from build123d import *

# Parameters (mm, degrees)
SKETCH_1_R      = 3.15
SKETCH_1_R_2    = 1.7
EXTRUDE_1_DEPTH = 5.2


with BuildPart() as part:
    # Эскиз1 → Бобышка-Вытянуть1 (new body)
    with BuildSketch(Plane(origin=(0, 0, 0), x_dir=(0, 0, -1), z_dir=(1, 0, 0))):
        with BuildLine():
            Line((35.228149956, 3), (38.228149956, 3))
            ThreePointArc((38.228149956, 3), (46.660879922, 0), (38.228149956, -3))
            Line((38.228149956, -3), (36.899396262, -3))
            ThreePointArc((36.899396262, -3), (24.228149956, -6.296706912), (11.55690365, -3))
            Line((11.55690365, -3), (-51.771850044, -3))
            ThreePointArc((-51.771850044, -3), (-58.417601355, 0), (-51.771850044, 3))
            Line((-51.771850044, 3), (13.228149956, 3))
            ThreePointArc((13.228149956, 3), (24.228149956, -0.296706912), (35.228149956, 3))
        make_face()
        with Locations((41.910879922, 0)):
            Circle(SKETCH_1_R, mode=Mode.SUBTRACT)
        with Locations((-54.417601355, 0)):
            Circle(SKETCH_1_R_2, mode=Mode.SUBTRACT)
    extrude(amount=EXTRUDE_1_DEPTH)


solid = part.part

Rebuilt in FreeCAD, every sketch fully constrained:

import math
import FreeCAD as App
import Part
import Sketcher
Q = App.Units.Quantity

doc = App.newDocument("Part")
body = doc.addObject("PartDesign::Body", "Body")

sketch1 = body.newObject("Sketcher::SketchObject", "Sketch")
sketch1.AttachmentSupport = (doc.getObject("YZ_Plane"), [""])
sketch1.MapMode = "FlatFace"
sketch1.addGeometry([
    Part.LineSegment(App.Vector(3, -38.2, 0), App.Vector(3, -35.2, 0)),
    Part.ArcOfCircle(Part.Circle(App.Vector(19.7, -24.2, 0), App.Vector(0, 0, 1), 20), math.radians(147), math.radians(213)),
    Part.LineSegment(App.Vector(3, -13.2, 0), App.Vector(3, 51.8, 0)),
    Part.ArcOfCircle(Part.Circle(App.Vector(0, 54.4, 0), App.Vector(0, 0, 1), 4), math.radians(-41), math.radians(221)),
    Part.LineSegment(App.Vector(-3, 51.8, 0), App.Vector(-3, -11.6, 0)),
    Part.ArcOfCircle(Part.Circle(App.Vector(19.7, -24.2, 0), App.Vector(0, 0, 1), 26), math.radians(151), math.radians(209)),
    Part.LineSegment(App.Vector(-3, -36.9, 0), App.Vector(-3, -38.2, 0)),
    Part.ArcOfCircle(Part.Circle(App.Vector(0, -41.9, 0), App.Vector(0, 0, 1), 4.8), math.radians(129), math.radians(411)),
    Part.Circle(App.Vector(0, -41.9, 0), App.Vector(0, 0, 1), 3.1),
    Part.Circle(App.Vector(0, 54.4, 0), App.Vector(0, 0, 1), 1.7),
], False)
sketch1.addConstraint([
    Sketcher.Constraint("Coincident", 0, 2, 1, 2),
    Sketcher.Constraint("Coincident", 1, 1, 2, 1),
    Sketcher.Constraint("Coincident", 2, 2, 3, 1),
    Sketcher.Constraint("Coincident", 3, 2, 4, 1),
    Sketcher.Constraint("Coincident", 4, 2, 5, 1),
    Sketcher.Constraint("Coincident", 5, 2, 6, 1),
    Sketcher.Constraint("Coincident", 6, 2, 7, 1),
    Sketcher.Constraint("Coincident", 7, 2, 0, 1),
    Sketcher.Constraint("Vertical", 0),
    Sketcher.Constraint("Vertical", 2),
    Sketcher.Constraint("Vertical", 4),
    Sketcher.Constraint("Vertical", 6),
    Sketcher.Constraint("Coincident", 5, 3, 1, 3),
    Sketcher.Constraint("Coincident", 8, 3, 7, 3),
    Sketcher.Constraint("Coincident", 9, 3, 3, 3),
    Sketcher.Constraint("Symmetric", 2, 2, 3, 2, -2),
    Sketcher.Constraint("Symmetric", 6, 2, 7, 2, -2),
    Sketcher.Constraint("Vertical", 0, 2, 1, 1),
    Sketcher.Constraint("Radius", 1, Q("20 mm")),
    Sketcher.Constraint("Radius", 3, Q("4 mm")),
    Sketcher.Constraint("Radius", 5, Q("26 mm")),
    Sketcher.Constraint("Diameter", 8, Q("6.3 mm")),
    Sketcher.Constraint("Diameter", 9, Q("3.4 mm")),
    Sketcher.Constraint("DistanceY", 0, 1, 0, 2, Q("3 mm")),
    Sketcher.Constraint("DistanceY", 2, 1, 2, 2, Q("65 mm")),
    Sketcher.Constraint("Radius", 7, Q("4.75 mm")),
    Sketcher.Constraint("DistanceX", -1, 1, 0, 2, Q("3 mm")),
    Sketcher.Constraint("DistanceY", 0, 2, 1, 3, Q("11 mm")),
    Sketcher.Constraint("DistanceY", -1, 1, 3, 3, Q("54.417601 mm")),
])
pad1 = body.newObject("PartDesign::Pad", "Pad")
pad1.Profile = sketch1
pad1.Length = 5.2

doc.recompute()
